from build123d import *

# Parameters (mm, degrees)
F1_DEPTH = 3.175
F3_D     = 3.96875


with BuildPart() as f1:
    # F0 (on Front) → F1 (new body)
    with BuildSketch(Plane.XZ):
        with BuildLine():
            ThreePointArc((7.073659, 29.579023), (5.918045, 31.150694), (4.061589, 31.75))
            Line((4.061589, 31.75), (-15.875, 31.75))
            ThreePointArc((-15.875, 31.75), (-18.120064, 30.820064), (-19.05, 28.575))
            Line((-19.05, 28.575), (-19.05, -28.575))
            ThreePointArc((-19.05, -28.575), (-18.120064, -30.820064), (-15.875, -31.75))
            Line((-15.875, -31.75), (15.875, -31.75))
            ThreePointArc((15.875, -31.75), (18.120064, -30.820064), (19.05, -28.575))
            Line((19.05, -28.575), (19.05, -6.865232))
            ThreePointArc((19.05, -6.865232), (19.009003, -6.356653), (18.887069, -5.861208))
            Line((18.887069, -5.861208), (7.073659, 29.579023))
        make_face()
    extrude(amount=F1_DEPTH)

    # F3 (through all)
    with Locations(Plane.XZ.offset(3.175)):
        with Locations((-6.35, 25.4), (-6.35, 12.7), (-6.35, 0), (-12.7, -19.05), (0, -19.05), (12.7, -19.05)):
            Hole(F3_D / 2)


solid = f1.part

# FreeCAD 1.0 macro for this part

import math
import FreeCAD as App
import Part
import Sketcher
from FreeCAD import Vector
Q = App.Units.Quantity

doc = App.newDocument("Part")
body = doc.addObject("PartDesign::Body", "Body")

sketch1 = doc.addObject("Sketcher::SketchObject", "Sketch")
body.addObject(sketch1)
sketch1.AttachmentSupport = (doc.XZ_Plane, [""])
sketch1.MapMode = "FlatFace"
sketch1.addGeometry([
    Part.ArcOfCircle(Part.Circle(Vector(4.1, 28.6, 0), Vector(0, 0, 1), 3.2), math.radians(18), math.radians(90)),
    Part.LineSegment(Vector(4.1, 31.8, 0), Vector(-15.9, 31.8, 0)),
    Part.ArcOfCircle(Part.Circle(Vector(-15.9, 28.6, 0), Vector(0, 0, 1), 3.2), math.radians(90), math.radians(180)),
    Part.LineSegment(Vector(-19.1, 28.6, 0), Vector(-19.1, -28.6, 0)),
    Part.ArcOfCircle(Part.Circle(Vector(-15.9, -28.6, 0), Vector(0, 0, 1), 3.2), math.radians(-180), math.radians(-90)),
    Part.LineSegment(Vector(-15.9, -31.8, 0), Vector(15.9, -31.8, 0)),
    Part.ArcOfCircle(Part.Circle(Vector(15.9, -28.6, 0), Vector(0, 0, 1), 3.2), math.radians(-90), math.radians(0)),
    Part.LineSegment(Vector(19.1, -28.6, 0), Vector(19.1, -6.9, 0)),
    Part.ArcOfCircle(Part.Circle(Vector(15.9, -6.9, 0), Vector(0, 0, 1), 3.2), math.radians(0), math.radians(18.44)),
    Part.LineSegment(Vector(18.9, -5.9, 0), Vector(7.1, 29.6, 0)),
], False)
sketch1.addConstraint([
    Sketcher.Constraint("Tangent", 0, 2, 1, 1),
    Sketcher.Constraint("Tangent", 1, 2, 2, 1),
    Sketcher.Constraint("Tangent", 2, 2, 3, 1),
    Sketcher.Constraint("Tangent", 3, 2, 4, 1),
    Sketcher.Constraint("Tangent", 4, 2, 5, 1),
    Sketcher.Constraint("Tangent", 5, 2, 6, 1),
    Sketcher.Constraint("Tangent", 6, 2, 7, 1),
    Sketcher.Constraint("Tangent", 7, 2, 8, 1),
    Sketcher.Constraint("Coincident", 8, 2, 9, 1),
    Sketcher.Constraint("Tangent", 9, 2, 0, 1),
    Sketcher.Constraint("Horizontal", 1),
    Sketcher.Constraint("Vertical", 3),
    Sketcher.Constraint("Horizontal", 5),
    Sketcher.Constraint("Vertical", 7),
    Sketcher.Constraint("Equal", 0, 2),
    Sketcher.Constraint("Equal", 2, 4),
    Sketcher.Constraint("Equal", 4, 6),
    Sketcher.Constraint("Symmetric", 2, 3, 6, 3, -1, 1),
    Sketcher.Constraint("Radius", 0, Q("0.125 in")),
    Sketcher.Constraint("DistanceX", 5, 1, 5, 2, Q("1.25 in")),
    Sketcher.Constraint("DistanceY", 3, 2, 3, 1, Q("2.25 in")),
    Sketcher.Constraint("Radius", 8, 3.174964),
    Sketcher.Constraint("DistanceX", 1, 2, 1, 1, 19.936589),
    Sketcher.Constraint("DistanceY", 7, 1, 7, 2, 21.709768),
    Sketcher.Constraint("DistanceX", -1, 1, 8, 2, 18.887069),
])
pad1 = doc.addObject("PartDesign::Pad", "Pad")
body.addObject(pad1)
pad1.Profile = sketch1
pad1.Length = Q("0.125 in")

sketch2 = doc.addObject("Sketcher::SketchObject", "Sketch001")
body.addObject(sketch2)
sketch2.AttachmentSupport = (doc.XZ_Plane, [""])
sketch2.MapMode = "FlatFace"
sketch2.AttachmentOffset = App.Placement(Vector(0, 0, 0.125 * 25.4), App.Rotation())
sketch2.addGeometry([
    Part.Circle(Vector(-6.3, 25.4, 0), Vector(0, 0, 1), 2),
    Part.Circle(Vector(-6.3, 12.7, 0), Vector(0, 0, 1), 2),
    Part.Circle(Vector(-6.3, 0, 0), Vector(0, 0, 1), 2),
    Part.Circle(Vector(-12.7, -19.1, 0), Vector(0, 0, 1), 2),
    Part.Circle(Vector(0, -19.1, 0), Vector(0, 0, 1), 2),
    Part.Circle(Vector(12.7, -19.1, 0), Vector(0, 0, 1), 2),
], False)
sketch2.addConstraint([
    Sketcher.Constraint("Equal", 0, 1),
    Sketcher.Constraint("Equal", 1, 2),
    Sketcher.Constraint("Equal", 2, 3),
    Sketcher.Constraint("Equal", 3, 4),
    Sketcher.Constraint("Equal", 4, 5),
    Sketcher.Constraint("Symmetric", 3, 3, 5, 3, -2),
    Sketcher.Constraint("PointOnObject", 2, 3, -1),
    Sketcher.Constraint("PointOnObject", 4, 3, -2),
    Sketcher.Constraint("Horizontal", 3, 3, 4, 3),
    Sketcher.Constraint("Vertical", 0, 3, 1, 3),
    Sketcher.Constraint("Vertical", 1, 3, 2, 3),
    Sketcher.Constraint("Diameter", 0, Q("0.15625 in")),
    Sketcher.Constraint("DistanceY", -1, 1, 0, 3, Q("1 in")),
    Sketcher.Constraint("DistanceX", 3, 3, 5, 3, Q("1 in")),
    Sketcher.Constraint("DistanceY", -1, 1, 1, 3, Q("0.5 in")),
    Sketcher.Constraint("DistanceX", 0, 3, -1, 1, Q("0.25 in")),
    Sketcher.Constraint("DistanceY", 3, 3, -1, 1, Q("0.75 in")),
])
doc.recompute()
hole = doc.addObject("PartDesign::Hole", "Hole")
body.addObject(hole)
hole.Profile = sketch2
hole.ThreadType = "None"
hole.Diameter = Q("0.15625 in")
hole.DepthType = "ThroughAll"

doc.recompute()
